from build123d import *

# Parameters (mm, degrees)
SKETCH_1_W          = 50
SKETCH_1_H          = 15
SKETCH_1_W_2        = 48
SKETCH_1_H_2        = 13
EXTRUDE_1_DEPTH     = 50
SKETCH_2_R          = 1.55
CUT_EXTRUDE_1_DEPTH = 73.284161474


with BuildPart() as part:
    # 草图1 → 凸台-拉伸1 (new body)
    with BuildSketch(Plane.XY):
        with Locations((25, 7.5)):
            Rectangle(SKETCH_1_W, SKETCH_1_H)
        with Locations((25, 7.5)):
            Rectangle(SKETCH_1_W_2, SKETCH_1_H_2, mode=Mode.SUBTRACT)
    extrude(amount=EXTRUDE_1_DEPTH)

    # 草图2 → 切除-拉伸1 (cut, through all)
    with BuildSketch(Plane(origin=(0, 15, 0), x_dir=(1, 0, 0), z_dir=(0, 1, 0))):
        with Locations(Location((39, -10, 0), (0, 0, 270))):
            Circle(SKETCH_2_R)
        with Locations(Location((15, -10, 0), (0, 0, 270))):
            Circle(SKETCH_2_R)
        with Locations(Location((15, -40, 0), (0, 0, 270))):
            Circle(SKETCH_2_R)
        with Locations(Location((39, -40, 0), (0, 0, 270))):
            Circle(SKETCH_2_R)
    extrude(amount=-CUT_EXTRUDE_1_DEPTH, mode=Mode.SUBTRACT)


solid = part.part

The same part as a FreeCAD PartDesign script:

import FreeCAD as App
import Part
import Sketcher
Q = App.Units.Quantity

doc = App.newDocument("Part")
body = doc.addObject("PartDesign::Body", "Body")

sketch1 = doc.addObject("Sketcher::SketchObject", "Sketch")
body.addObject(sketch1)
sketch1.AttachmentSupport = (doc.XY_Plane, [""])
sketch1.MapMode = "FlatFace"
sketch1.addGeometry(Part.LineSegment(App.Vector(0, 15, 0), App.Vector(0, 0, 0)), False)
sketch1.addGeometry(Part.LineSegment(App.Vector(0, 0, 0), App.Vector(50, 0, 0)), False)
sketch1.addGeometry(Part.LineSegment(App.Vector(50, 0, 0), App.Vector(50, 15, 0)), False)
sketch1.addGeometry(Part.LineSegment(App.Vector(50, 15, 0), App.Vector(0, 15, 0)), False)
sketch1.addGeometry(Part.LineSegment(App.Vector(49, 1, 0), App.Vector(1, 1, 0)), False)
sketch1.addGeometry(Part.LineSegment(App.Vector(1, 1, 0), App.Vector(1, 14, 0)), False)
sketch1.addGeometry(Part.LineSegment(App.Vector(1, 14, 0), App.Vector(49, 14, 0)), False)
sketch1.addGeometry(Part.LineSegment(App.Vector(49, 14, 0), App.Vector(49, 1, 0)), False)
sketch1.addConstraint(Sketcher.Constraint("Coincident", 0, 2, 1, 1))
sketch1.addConstraint(Sketcher.Constraint("Coincident", 1, 2, 2, 1))
sketch1.addConstraint(Sketcher.Constraint("Coincident", 2, 2, 3, 1))
sketch1.addConstraint(Sketcher.Constraint("Coincident", 3, 2, 0, 1))
sketch1.addConstraint(Sketcher.Constraint("Coincident", 4, 2, 5, 1))
sketch1.addConstraint(Sketcher.Constraint("Coincident", 5, 2, 6, 1))
sketch1.addConstraint(Sketcher.Constraint("Coincident", 6, 2, 7, 1))
sketch1.addConstraint(Sketcher.Constraint("Coincident", 7, 2, 4, 1))
sketch1.addConstraint(Sketcher.Constraint("Vertical", 0))
sketch1.addConstraint(Sketcher.Constraint("Horizontal", 1))
sketch1.addConstraint(Sketcher.Constraint("Vertical", 2))
sketch1.addConstraint(Sketcher.Constraint("Horizontal", 3))
sketch1.addConstraint(Sketcher.Constraint("Horizontal", 4))
sketch1.addConstraint(Sketcher.Constraint("Vertical", 5))
sketch1.addConstraint(Sketcher.Constraint("Horizontal", 6))
sketch1.addConstraint(Sketcher.Constraint("Vertical", 7))
sketch1.addConstraint(Sketcher.Constraint("Coincident", 0, 2, -1, 1))
sketch1.addConstraint(Sketcher.Constraint("DistanceX", 1, 1, 1, 2, Q("50 mm")))
sketch1.addConstraint(Sketcher.Constraint("DistanceX", 4, 2, 4, 1, Q("48 mm")))
sketch1.addConstraint(Sketcher.Constraint("DistanceY", 0, 2, 0, 1, Q("15 mm")))
sketch1.addConstraint(Sketcher.Constraint("DistanceY", 5, 1, 5, 2, Q("13 mm")))
sketch1.addConstraint(Sketcher.Constraint("DistanceX", -1, 1, 4, 2, Q("1 mm")))
sketch1.addConstraint(Sketcher.Constraint("DistanceY", -1, 1, 4, 2, Q("1 mm")))
pad1 = doc.addObject("PartDesign::Pad", "Pad")
body.addObject(pad1)
pad1.Profile = sketch1
pad1.Length = 50

sketch2 = doc.addObject("Sketcher::SketchObject", "Sketch001")
body.addObject(sketch2)
sketch2.AttachmentSupport = (doc.XZ_Plane, [""])
sketch2.MapMode = "FlatFace"
sketch2.AttachmentOffset = App.Placement(App.Vector(0, 0, -15), App.Rotation())
sketch2.addGeometry(Part.Circle(App.Vector(39, 10, 0), App.Vector(0, 0, 1), 1.6), False)
sketch2.addGeometry(Part.Circle(App.Vector(15, 10, 0), App.Vector(0, 0, 1), 1.6), False)
sketch2.addGeometry(Part.Circle(App.Vector(15, 40, 0), App.Vector(0, 0, 1), 1.6), False)
sketch2.addGeometry(Part.Circle(App.Vector(39, 40, 0), App.Vector(0, 0, 1), 1.6), False)
sketch2.addConstraint(Sketcher.Constraint("Equal", 0, 1))
sketch2.addConstraint(Sketcher.Constraint("Equal", 1, 2))
sketch2.addConstraint(Sketcher.Constraint("Equal", 2, 3))
sketch2.addConstraint(Sketcher.Constraint("Horizontal", 0, 3, 1, 3))
sketch2.addConstraint(Sketcher.Constraint("Horizontal", 2, 3, 3, 3))
sketch2.addConstraint(Sketcher.Constraint("Vertical", 1, 3, 2, 3))
sketch2.addConstraint(Sketcher.Constraint("Vertical", 0, 3, 3, 3))
sketch2.addConstraint(Sketcher.Constraint("Diameter", 0, Q("3.1 mm")))
sketch2.addConstraint(Sketcher.Constraint("DistanceX", -1, 1, 0, 3, Q("39 mm")))
sketch2.addConstraint(Sketcher.Constraint("DistanceY", -1, 1, 0, 3, Q("10 mm")))
sketch2.addConstraint(Sketcher.Constraint("DistanceX", -1, 1, 1, 3, Q("15 mm")))
sketch2.addConstraint(Sketcher.Constraint("DistanceY", -1, 1, 2, 3, Q("40 mm")))
pocket1 = doc.addObject("PartDesign::Pocket", "Pocket")
body.addObject(pocket1)
pocket1.Profile = sketch2
pocket1.Type = "ThroughAll"
pocket1.Reversed = True

doc.recompute()
